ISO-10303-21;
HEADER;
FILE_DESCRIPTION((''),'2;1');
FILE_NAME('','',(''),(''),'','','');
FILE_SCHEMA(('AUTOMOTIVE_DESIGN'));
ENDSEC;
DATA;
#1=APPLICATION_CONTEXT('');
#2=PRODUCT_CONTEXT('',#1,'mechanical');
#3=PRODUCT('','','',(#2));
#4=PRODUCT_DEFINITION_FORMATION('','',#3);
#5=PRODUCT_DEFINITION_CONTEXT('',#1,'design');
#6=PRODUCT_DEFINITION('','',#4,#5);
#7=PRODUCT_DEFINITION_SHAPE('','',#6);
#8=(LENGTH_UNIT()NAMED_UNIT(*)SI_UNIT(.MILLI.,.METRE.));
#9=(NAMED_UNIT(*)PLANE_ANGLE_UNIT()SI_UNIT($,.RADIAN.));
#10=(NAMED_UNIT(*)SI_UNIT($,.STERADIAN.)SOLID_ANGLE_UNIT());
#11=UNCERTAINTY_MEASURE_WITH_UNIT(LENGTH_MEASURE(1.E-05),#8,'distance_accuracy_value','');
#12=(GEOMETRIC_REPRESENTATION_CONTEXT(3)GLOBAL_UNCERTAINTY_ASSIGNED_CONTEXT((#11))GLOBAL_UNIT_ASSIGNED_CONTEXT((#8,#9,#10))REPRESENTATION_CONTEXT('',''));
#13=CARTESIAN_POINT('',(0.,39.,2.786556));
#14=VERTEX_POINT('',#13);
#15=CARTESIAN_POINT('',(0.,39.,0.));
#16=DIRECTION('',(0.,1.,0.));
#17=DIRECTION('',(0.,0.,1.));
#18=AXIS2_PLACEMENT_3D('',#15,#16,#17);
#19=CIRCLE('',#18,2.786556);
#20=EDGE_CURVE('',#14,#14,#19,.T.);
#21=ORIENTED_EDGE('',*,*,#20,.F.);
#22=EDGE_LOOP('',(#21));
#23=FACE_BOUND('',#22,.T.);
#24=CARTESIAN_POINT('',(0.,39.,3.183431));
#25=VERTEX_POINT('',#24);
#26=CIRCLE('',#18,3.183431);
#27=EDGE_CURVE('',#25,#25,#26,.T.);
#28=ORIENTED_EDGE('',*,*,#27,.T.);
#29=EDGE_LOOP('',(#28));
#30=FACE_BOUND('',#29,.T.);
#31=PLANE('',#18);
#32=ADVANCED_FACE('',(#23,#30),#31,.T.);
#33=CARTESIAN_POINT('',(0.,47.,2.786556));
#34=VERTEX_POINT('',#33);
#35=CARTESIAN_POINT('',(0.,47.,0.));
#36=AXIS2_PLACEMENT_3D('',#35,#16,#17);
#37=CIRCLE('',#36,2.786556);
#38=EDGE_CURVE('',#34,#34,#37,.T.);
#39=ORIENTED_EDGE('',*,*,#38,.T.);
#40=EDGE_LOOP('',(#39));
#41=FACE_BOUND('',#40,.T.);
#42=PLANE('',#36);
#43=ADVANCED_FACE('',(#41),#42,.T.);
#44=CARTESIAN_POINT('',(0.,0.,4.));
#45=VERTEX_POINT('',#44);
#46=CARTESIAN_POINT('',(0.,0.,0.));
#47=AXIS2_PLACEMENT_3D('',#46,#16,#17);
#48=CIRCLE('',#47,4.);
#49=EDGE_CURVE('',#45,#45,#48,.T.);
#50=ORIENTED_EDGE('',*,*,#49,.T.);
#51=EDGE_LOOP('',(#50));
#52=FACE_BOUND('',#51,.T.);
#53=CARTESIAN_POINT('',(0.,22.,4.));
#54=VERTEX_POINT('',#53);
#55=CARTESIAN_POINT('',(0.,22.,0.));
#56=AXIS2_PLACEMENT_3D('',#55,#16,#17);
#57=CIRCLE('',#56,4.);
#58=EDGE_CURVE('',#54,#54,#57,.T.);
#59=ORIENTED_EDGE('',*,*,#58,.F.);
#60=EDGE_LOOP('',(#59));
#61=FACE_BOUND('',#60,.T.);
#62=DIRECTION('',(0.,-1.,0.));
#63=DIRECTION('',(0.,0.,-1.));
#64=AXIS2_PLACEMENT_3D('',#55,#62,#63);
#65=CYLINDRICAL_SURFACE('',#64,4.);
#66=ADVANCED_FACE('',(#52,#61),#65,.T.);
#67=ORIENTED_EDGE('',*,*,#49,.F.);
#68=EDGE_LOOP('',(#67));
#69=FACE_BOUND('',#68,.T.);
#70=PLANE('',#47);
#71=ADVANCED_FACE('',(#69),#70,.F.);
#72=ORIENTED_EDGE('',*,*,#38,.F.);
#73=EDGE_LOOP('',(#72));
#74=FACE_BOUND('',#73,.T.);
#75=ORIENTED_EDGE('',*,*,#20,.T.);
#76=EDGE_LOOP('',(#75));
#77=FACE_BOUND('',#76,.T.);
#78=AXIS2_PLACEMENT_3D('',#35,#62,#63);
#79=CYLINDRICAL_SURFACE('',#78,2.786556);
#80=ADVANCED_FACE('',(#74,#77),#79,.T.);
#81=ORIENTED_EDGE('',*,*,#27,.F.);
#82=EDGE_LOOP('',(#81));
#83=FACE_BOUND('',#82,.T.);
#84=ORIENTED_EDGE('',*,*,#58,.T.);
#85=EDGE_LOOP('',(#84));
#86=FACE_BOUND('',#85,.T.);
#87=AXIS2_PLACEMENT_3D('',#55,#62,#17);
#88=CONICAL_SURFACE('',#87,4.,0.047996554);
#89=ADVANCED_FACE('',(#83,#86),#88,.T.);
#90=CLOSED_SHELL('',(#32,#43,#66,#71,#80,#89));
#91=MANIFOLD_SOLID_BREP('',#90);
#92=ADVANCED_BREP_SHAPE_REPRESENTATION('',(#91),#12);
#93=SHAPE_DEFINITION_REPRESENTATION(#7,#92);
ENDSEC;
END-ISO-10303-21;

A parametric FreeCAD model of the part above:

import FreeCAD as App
import Part
import Sketcher

doc = App.newDocument("Part")
body = doc.addObject("PartDesign::Body", "Body")

# Sketch on XZ plane
sketch1 = body.newObject("Sketcher::SketchObject", "Sketch")
sketch1.AttachmentSupport = (doc.getObject("XZ_Plane"), [""])
sketch1.MapMode = "FlatFace"
sketch1.addGeometry(Part.Circle(App.Vector(0, 0, 0), App.Vector(0, 0, 1), 4), False)
sketch1.addConstraint([
    Sketcher.Constraint("Coincident", 0, 3, -1, 1),
    Sketcher.Constraint("Diameter", 0, 8.0),
])
pad1 = body.newObject("PartDesign::Pad", "Pad")
pad1.Profile = sketch1
pad1.Length = 22
pad1.Reversed = True

# Sketch on XZ plane
sketch2 = body.newObject("Sketcher::SketchObject", "Sketch001")
sketch2.AttachmentSupport = (doc.getObject("XZ_Plane"), [""])
sketch2.MapMode = "FlatFace"
sketch2.AttachmentOffset = App.Placement(App.Vector(0, 0, -22), App.Rotation())
sketch2.addGeometry(Part.Circle(App.Vector(0, 0, 0), App.Vector(0, 0, 1), 4), False)
sketch2.addConstraint([
    Sketcher.Constraint("Coincident", 0, 3, -1, 1),
    Sketcher.Constraint("Diameter", 0, 8.0),
])
pad2 = body.newObject("PartDesign::Pad", "Pad001")
pad2.Profile = sketch2
pad2.Length = 17
pad2.Reversed = True
pad2.TaperAngle = -2.75

# Sketch on XZ plane
sketch3 = body.newObject("Sketcher::SketchObject", "Sketch002")
sketch3.AttachmentSupport = (doc.getObject("XZ_Plane"), [""])
sketch3.MapMode = "FlatFace"
sketch3.AttachmentOffset = App.Placement(App.Vector(0, 0, -39), App.Rotation())
sketch3.addGeometry(Part.Circle(App.Vector(0, 0, 0), App.Vector(0, 0, 1), 2.8), False)
sketch3.addConstraint([
    Sketcher.Constraint("Coincident", 0, 3, -1, 1),
    Sketcher.Constraint("Diameter", 0, 5.573113),
])
pad3 = body.newObject("PartDesign::Pad", "Pad002")
pad3.Profile = sketch3
pad3.Length = 8
pad3.Reversed = True

doc.recompute()
